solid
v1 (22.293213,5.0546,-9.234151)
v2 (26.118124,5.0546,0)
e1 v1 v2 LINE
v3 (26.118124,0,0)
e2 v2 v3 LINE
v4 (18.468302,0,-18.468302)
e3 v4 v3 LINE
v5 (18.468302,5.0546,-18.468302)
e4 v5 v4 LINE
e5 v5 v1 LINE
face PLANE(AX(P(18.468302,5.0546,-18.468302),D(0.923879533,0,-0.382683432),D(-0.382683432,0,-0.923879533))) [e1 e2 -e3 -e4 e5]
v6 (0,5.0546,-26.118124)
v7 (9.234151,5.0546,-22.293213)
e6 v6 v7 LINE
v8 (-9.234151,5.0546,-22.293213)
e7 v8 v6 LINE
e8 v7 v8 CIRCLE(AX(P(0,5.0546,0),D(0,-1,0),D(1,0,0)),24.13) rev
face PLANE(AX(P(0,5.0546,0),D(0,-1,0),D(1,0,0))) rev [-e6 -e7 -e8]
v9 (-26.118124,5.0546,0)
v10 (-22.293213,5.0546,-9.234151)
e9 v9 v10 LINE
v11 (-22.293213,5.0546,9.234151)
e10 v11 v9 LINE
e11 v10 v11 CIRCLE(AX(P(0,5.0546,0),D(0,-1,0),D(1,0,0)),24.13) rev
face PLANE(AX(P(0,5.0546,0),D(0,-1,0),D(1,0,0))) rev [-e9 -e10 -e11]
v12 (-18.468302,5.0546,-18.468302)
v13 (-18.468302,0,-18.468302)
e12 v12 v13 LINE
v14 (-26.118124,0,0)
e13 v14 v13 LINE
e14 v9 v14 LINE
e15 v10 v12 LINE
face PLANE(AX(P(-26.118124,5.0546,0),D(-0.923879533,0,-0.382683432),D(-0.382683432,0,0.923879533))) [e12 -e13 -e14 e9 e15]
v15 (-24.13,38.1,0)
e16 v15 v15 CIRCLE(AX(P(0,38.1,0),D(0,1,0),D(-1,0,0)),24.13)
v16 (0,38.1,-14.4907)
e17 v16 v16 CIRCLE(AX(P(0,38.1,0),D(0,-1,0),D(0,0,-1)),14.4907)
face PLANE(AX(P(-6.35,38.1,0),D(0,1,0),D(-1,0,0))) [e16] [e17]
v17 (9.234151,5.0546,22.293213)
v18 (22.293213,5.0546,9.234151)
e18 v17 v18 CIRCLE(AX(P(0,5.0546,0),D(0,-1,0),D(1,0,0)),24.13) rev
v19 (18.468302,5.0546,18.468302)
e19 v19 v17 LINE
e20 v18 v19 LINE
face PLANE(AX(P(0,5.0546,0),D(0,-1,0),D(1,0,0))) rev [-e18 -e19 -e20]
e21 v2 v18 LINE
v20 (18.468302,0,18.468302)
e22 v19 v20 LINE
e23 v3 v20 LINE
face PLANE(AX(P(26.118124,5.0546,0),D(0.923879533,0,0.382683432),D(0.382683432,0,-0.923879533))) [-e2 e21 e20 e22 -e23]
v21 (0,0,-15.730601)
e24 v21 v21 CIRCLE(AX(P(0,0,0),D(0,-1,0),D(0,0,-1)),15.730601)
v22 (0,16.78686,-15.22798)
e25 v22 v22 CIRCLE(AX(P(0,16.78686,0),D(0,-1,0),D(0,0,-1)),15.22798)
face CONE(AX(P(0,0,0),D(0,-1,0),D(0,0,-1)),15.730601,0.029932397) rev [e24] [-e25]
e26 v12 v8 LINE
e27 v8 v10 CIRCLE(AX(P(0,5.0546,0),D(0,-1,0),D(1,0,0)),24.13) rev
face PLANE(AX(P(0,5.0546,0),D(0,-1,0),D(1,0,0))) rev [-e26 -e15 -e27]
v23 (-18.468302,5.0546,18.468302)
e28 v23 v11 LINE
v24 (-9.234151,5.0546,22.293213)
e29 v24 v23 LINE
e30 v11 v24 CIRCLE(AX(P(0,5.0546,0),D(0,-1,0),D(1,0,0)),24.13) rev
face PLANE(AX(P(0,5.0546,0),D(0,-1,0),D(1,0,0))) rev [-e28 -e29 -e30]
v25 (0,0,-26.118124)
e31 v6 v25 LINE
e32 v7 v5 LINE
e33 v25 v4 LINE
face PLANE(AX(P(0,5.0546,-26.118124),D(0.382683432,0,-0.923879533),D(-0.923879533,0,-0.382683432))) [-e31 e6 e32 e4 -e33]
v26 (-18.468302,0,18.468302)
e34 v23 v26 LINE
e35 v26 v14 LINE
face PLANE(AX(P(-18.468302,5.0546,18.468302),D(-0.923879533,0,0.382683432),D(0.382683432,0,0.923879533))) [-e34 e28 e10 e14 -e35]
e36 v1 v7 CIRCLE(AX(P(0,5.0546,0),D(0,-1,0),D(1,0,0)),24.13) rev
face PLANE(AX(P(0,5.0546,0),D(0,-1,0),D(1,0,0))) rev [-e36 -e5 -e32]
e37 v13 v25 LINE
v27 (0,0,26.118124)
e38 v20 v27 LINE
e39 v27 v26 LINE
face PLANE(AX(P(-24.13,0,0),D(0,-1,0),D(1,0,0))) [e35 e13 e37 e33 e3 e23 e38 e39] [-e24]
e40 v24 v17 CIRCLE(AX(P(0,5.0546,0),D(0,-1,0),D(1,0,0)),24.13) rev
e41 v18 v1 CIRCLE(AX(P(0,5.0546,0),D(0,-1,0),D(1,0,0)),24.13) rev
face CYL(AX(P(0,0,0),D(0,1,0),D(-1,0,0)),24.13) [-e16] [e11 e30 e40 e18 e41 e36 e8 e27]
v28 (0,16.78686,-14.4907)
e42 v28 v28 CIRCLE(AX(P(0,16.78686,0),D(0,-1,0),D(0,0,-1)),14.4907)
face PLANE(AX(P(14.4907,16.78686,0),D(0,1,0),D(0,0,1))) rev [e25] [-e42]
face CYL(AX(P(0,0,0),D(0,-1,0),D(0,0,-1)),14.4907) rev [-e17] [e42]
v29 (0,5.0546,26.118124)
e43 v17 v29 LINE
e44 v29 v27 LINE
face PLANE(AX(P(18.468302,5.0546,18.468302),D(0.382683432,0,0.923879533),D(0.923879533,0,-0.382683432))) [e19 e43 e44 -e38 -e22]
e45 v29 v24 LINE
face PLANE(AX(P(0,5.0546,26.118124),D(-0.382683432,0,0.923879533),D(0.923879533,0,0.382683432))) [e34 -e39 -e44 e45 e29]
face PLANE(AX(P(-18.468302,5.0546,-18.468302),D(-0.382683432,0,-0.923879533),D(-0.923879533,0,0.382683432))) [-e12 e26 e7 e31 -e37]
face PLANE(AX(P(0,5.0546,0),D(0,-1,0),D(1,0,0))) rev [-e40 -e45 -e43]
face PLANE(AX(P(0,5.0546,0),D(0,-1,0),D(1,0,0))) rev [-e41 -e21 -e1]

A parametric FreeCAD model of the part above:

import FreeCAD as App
import Part
import Sketcher
from FreeCAD import Vector
Q = App.Units.Quantity

doc = App.newDocument("Part")
body = doc.addObject("PartDesign::Body", "Body")

sketch1 = body.newObject("Sketcher::SketchObject", "Sketch")
sketch1.AttachmentSupport = (doc.getObject("XY_Plane"), [""])
sketch1.MapMode = "FlatFace"
sketch1.addGeometry(Part.LineSegment(Vector(-24, 38, 0), Vector(-24, 0, 0)), False)
sketch1.addGeometry(Part.LineSegment(Vector(-24, 0, 0), Vector(-6, 0, 0)), False)
sketch1.addGeometry(Part.LineSegment(Vector(-6, 0, 0), Vector(-6, 38, 0)), False)
sketch1.addGeometry(Part.LineSegment(Vector(-6, 38, 0), Vector(-24, 38, 0)), False)
sketch1.addConstraint(Sketcher.Constraint("Coincident", 0, 2, 1, 1))
sketch1.addConstraint(Sketcher.Constraint("Coincident", 1, 2, 2, 1))
sketch1.addConstraint(Sketcher.Constraint("Coincident", 2, 2, 3, 1))
sketch1.addConstraint(Sketcher.Constraint("Coincident", 3, 2, 0, 1))
sketch1.addConstraint(Sketcher.Constraint("Vertical", 0))
sketch1.addConstraint(Sketcher.Constraint("Horizontal", 1))
sketch1.addConstraint(Sketcher.Constraint("Vertical", 2))
sketch1.addConstraint(Sketcher.Constraint("Horizontal", 3))
sketch1.addConstraint(Sketcher.Constraint("PointOnObject", 0, 2, -1))
sketch1.addConstraint(Sketcher.Constraint("DistanceX", 1, 1, 1, 2, Q("0.7 in")))
sketch1.addConstraint(Sketcher.Constraint("DistanceY", 0, 2, 0, 1, Q("1.5 in")))
sketch1.addConstraint(Sketcher.Constraint("DistanceX", 0, 2, -1, 1, Q("0.95 in")))
revolution = body.newObject("PartDesign::Revolution", "Revolution")
revolution.Profile = sketch1
revolution.ReferenceAxis = (sketch1, ["V_Axis"])
revolution.Angle = 360

sketch2 = body.newObject("Sketcher::SketchObject", "Sketch001")
sketch2.AttachmentSupport = (doc.getObject("XZ_Plane"), [""])
sketch2.MapMode = "FlatFace"
sketch2.addGeometry(Part.LineSegment(Vector(0, 26, 0), Vector(-18, 18, 0)), False)
sketch2.addGeometry(Part.LineSegment(Vector(-18, 18, 0), Vector(-26, 0, 0)), False)
sketch2.addGeometry(Part.LineSegment(Vector(-26, 0, 0), Vector(-18, -18, 0)), False)
sketch2.addGeometry(Part.LineSegment(Vector(-18, -18, 0), Vector(0, -26, 0)), False)
sketch2.addGeometry(Part.LineSegment(Vector(0, -26, 0), Vector(18, -18, 0)), False)
sketch2.addGeometry(Part.LineSegment(Vector(18, -18, 0), Vector(26, 0, 0)), False)
sketch2.addGeometry(Part.LineSegment(Vector(26, 0, 0), Vector(18, 18, 0)), False)
sketch2.addGeometry(Part.LineSegment(Vector(18, 18, 0), Vector(0, 26, 0)), False)
sketch2.addGeometry(Part.Circle(Vector(0, 0, 0), Vector(0, 0, 1), 6), False)
sketch2.addConstraint(Sketcher.Constraint("Coincident", 0, 2, 1, 1))
sketch2.addConstraint(Sketcher.Constraint("Coincident", 1, 2, 2, 1))
sketch2.addConstraint(Sketcher.Constraint("Coincident", 2, 2, 3, 1))
sketch2.addConstraint(Sketcher.Constraint("Coincident", 3, 2, 4, 1))
sketch2.addConstraint(Sketcher.Constraint("Coincident", 4, 2, 5, 1))
sketch2.addConstraint(Sketcher.Constraint("Coincident", 5, 2, 6, 1))
sketch2.addConstraint(Sketcher.Constraint("Coincident", 6, 2, 7, 1))
sketch2.addConstraint(Sketcher.Constraint("Coincident", 7, 2, 0, 1))
sketch2.addConstraint(Sketcher.Constraint("Coincident", 8, 3, -1, 1))
sketch2.addConstraint(Sketcher.Constraint("Symmetric", 0, 2, 4, 2, -1, 1))
sketch2.addConstraint(Sketcher.Constraint("Symmetric", 1, 2, 5, 2, -1, 1))
sketch2.addConstraint(Sketcher.Constraint("Symmetric", 2, 2, 6, 2, -1, 1))
sketch2.addConstraint(Sketcher.Constraint("Symmetric", 3, 2, 7, 2, -1, 1))
sketch2.addConstraint(Sketcher.Constraint("Symmetric", 2, 2, 4, 2, -2))
sketch2.addConstraint(Sketcher.Constraint("PointOnObject", 1, 2, -1))
sketch2.addConstraint(Sketcher.Constraint("PointOnObject", 3, 2, -2))
sketch2.addConstraint(Sketcher.Constraint("Perpendicular", 0, 2))
sketch2.addConstraint(Sketcher.Constraint("Equal", 0, 1))
sketch2.addConstraint(Sketcher.Constraint("Diameter", 8, Q("0.5 in")))
sketch2.addConstraint(Sketcher.Constraint("Angle", 0, Q("-157.5 deg")))
sketch2.addConstraint(Sketcher.Constraint("DistanceX", 1, 2, 0, 2, 7.649821))
pad1 = body.newObject("PartDesign::Pad", "Pad")
pad1.Profile = sketch2
pad1.Length = Q("0.199 in")
pad1.Reversed = True

sketch3 = body.newObject("Sketcher::SketchObject", "Sketch002")
sketch3.AttachmentSupport = (doc.getObject("YZ_Plane"), [""])
sketch3.MapMode = "FlatFace"
sketch3.addGeometry(Part.LineSegment(Vector(38.1, 0, 0), Vector(0, 0, 0)), False)
sketch3.addGeometry(Part.LineSegment(Vector(0, 0, 0), Vector(0, -15.7, 0)), False)
sketch3.addGeometry(Part.LineSegment(Vector(0, -15.7, 0), Vector(16.8, -15.2, 0)), False)
sketch3.addGeometry(Part.LineSegment(Vector(16.8, -15.2, 0), Vector(16.8, -14.5, 0)), False)
sketch3.addGeometry(Part.LineSegment(Vector(16.8, -14.5, 0), Vector(38.1, -14.5, 0)), False)
sketch3.addGeometry(Part.LineSegment(Vector(38.1, -14.5, 0), Vector(38.1, 0, 0)), False)
sketch3.addConstraint(Sketcher.Constraint("Coincident", 0, 2, 1, 1))
sketch3.addConstraint(Sketcher.Constraint("Coincident", 1, 2, 2, 1))
sketch3.addConstraint(Sketcher.Constraint("Coincident", 2, 2, 3, 1))
sketch3.addConstraint(Sketcher.Constraint("Coincident", 3, 2, 4, 1))
sketch3.addConstraint(Sketcher.Constraint("Coincident", 4, 2, 5, 1))
sketch3.addConstraint(Sketcher.Constraint("Coincident", 5, 2, 0, 1))
sketch3.addConstraint(Sketcher.Constraint("Horizontal", 0))
sketch3.addConstraint(Sketcher.Constraint("Vertical", 1))
sketch3.addConstraint(Sketcher.Constraint("Vertical", 3))
sketch3.addConstraint(Sketcher.Constraint("Horizontal", 4))
sketch3.addConstraint(Sketcher.Constraint("Vertical", 5))
sketch3.addConstraint(Sketcher.Constraint("Coincident", 0, 2, -1, 1))
sketch3.addConstraint(Sketcher.Constraint("DistanceX", 0, 2, 0, 1, Q("1.5 in")))
sketch3.addConstraint(Sketcher.Constraint("DistanceX", 4, 1, 4, 2, Q("0.8391 in")))
sketch3.addConstraint(Sketcher.Constraint("DistanceY", 5, 1, 5, 2, Q("0.5705 in")))
sketch3.addConstraint(Sketcher.Constraint("DistanceY", 1, 2, 1, 1, 15.730601))
sketch3.addConstraint(Sketcher.Constraint("DistanceY", 3, 1, 3, 2, 0.73728))
groove = body.newObject("PartDesign::Groove", "Groove")
groove.Profile = sketch3
groove.ReferenceAxis = (sketch3, ["H_Axis"])
groove.Angle = 360

doc.recompute()
